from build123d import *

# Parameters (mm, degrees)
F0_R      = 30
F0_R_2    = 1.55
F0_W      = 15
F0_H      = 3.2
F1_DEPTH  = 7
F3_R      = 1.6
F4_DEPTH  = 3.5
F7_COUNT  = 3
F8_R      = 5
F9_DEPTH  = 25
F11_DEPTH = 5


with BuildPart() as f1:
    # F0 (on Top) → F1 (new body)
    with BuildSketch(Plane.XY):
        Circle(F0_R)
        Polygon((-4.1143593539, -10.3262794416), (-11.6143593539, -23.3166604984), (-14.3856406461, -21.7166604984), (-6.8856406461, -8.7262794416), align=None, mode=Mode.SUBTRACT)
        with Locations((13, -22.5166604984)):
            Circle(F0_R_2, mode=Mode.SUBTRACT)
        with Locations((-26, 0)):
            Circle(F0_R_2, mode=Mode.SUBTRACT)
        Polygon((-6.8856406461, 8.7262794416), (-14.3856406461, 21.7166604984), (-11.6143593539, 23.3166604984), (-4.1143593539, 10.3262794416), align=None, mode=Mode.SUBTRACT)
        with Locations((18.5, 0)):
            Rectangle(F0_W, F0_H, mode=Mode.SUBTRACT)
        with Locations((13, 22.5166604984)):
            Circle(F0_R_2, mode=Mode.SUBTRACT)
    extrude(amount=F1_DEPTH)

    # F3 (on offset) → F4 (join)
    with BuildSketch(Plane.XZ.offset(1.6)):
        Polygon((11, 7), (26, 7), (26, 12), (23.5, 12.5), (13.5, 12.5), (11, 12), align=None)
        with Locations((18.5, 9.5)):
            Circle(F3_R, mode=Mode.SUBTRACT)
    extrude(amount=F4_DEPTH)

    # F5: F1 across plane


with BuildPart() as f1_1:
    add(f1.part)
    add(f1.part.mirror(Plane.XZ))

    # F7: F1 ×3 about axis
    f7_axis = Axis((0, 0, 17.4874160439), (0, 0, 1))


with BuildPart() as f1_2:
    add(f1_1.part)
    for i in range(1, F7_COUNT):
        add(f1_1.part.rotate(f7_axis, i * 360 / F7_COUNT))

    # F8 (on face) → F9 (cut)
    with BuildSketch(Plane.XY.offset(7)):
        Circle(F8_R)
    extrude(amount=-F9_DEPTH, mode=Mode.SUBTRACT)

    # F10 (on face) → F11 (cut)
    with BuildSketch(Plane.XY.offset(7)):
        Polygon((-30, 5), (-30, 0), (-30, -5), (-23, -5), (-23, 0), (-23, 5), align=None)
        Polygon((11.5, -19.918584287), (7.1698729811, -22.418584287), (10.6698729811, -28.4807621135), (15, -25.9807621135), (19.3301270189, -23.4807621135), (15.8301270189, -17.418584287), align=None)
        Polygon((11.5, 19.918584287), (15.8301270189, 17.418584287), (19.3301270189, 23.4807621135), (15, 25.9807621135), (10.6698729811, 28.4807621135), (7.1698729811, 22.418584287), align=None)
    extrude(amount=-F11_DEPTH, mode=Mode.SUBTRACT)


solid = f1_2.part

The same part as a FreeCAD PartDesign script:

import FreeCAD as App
import Part
import Sketcher
from FreeCAD import Vector
Q = App.Units.Quantity


def add_polygon(sketch, points):
    """Adds a closed chain of lines whose ends are joined by coincident constraints."""
    first, n = sketch.GeometryCount, len(points)
    for a, b in zip(points, points[1:] + points[:1]):
        sketch.addGeometry(Part.LineSegment(App.Vector(*a, 0), App.Vector(*b, 0)), False)
    for i in range(n):
        sketch.addConstraint(Sketcher.Constraint("Coincident", first + i, 2, first + (i + 1) % n, 1))

doc = App.newDocument("Part")
body = doc.addObject("PartDesign::Body", "Body")

sketch1 = body.newObject("Sketcher::SketchObject", "Sketch")
sketch1.AttachmentSupport = (doc.getObject("XY_Plane"), [""])
sketch1.MapMode = "FlatFace"
sketch1.addGeometry(Part.Circle(Vector(0, 0, 0), Vector(0, 0, 1), 30), False)
add_polygon(sketch1, [(-6.885641, -8.726279), (-4.114359, -10.326279), (-11.614359, -23.31666), (-14.385641, -21.71666)])
sketch1.addGeometry(Part.Circle(Vector(13, -22.51666, 0), Vector(0, 0, 1), 1.55), False)
sketch1.addGeometry(Part.Circle(Vector(-26, 0, 0), Vector(0, 0, 1), 1.55), False)
add_polygon(sketch1, [(-4.114359, 10.326279), (-6.885641, 8.726279), (-14.385641, 21.71666), (-11.614359, 23.31666)])
add_polygon(sketch1, [(26, -1.6), (11, -1.6), (11, 1.6), (26, 1.6)])
sketch1.addGeometry(Part.Circle(Vector(13, 22.51666, 0), Vector(0, 0, 1), 1.55), False)
sketch1.addConstraint([
    Sketcher.Constraint("Horizontal", 11),
    Sketcher.Constraint("Vertical", 12),
    Sketcher.Constraint("Horizontal", 13),
    Sketcher.Constraint("Vertical", 14),
    Sketcher.Constraint("Coincident", 0, 3, -1, 1),
    Sketcher.Constraint("Equal", 5, 6),
    Sketcher.Constraint("Equal", 6, 15),
    Sketcher.Constraint("Symmetric", 5, 3, 15, 3, -1),
    Sketcher.Constraint("Symmetric", 4, 2, 7, 2, -1),
    Sketcher.Constraint("Symmetric", 3, 2, 8, 2, -1),
    Sketcher.Constraint("Symmetric", 2, 2, 9, 2, -1),
    Sketcher.Constraint("Symmetric", 1, 2, 10, 2, -1),
    Sketcher.Constraint("PointOnObject", 6, 3, -1),
    Sketcher.Constraint("Perpendicular", 1, 2),
    Sketcher.Constraint("Perpendicular", 2, 3),
    Sketcher.Constraint("Perpendicular", 3, 4),
    Sketcher.Constraint("Diameter", 0, 60.0),
    Sketcher.Constraint("Diameter", 5, 3.1),
    Sketcher.Constraint("DistanceX", 11, 2, 11, 1, 15.0),
    Sketcher.Constraint("Angle", 1, Q("-30 deg")),
    Sketcher.Constraint("Distance", 2, 15.0),
    Sketcher.Constraint("DistanceY", 12, 1, 12, 2, 3.2),
    Sketcher.Constraint("DistanceX", -1, 1, 5, 3, 13.0),
    Sketcher.Constraint("DistanceX", 6, 3, -1, 1, 26.0),
    Sketcher.Constraint("DistanceX", -1, 1, 11, 2, 11.0),
    Sketcher.Constraint("Distance", 1, 3.2),
    Sketcher.Constraint("DistanceY", 11, 2, -1, 1, 1.6),
    Sketcher.Constraint("DistanceY", 2, 2, 5, 3, 0.8),
    Sketcher.Constraint("DistanceY", 5, 3, -1, 1, 22.51666),
    Sketcher.Constraint("DistanceX", 1, 2, -1, 1, 4.114359),
])
pad1 = body.newObject("PartDesign::Pad", "Pad")
pad1.Profile = sketch1
pad1.Length = 7

sketch2 = body.newObject("Sketcher::SketchObject", "Sketch001")
sketch2.AttachmentSupport = (doc.getObject("XZ_Plane"), [""])
sketch2.MapMode = "FlatFace"
sketch2.AttachmentOffset = App.Placement(Vector(0, 0, 1.6), App.Rotation())
add_polygon(sketch2, [(11, 7), (26, 7), (26, 12), (23.5, 12.5), (13.5, 12.5), (11, 12)])
sketch2.addGeometry(Part.Circle(Vector(18.5, 9.5, 0), Vector(0, 0, 1), 1.6), False)
sketch2.addConstraint([
    Sketcher.Constraint("Horizontal", 0),
    Sketcher.Constraint("Vertical", 1),
    Sketcher.Constraint("Horizontal", 3),
    Sketcher.Constraint("Vertical", 5),
    Sketcher.Constraint("Horizontal", 1, 2, 4, 2),
    Sketcher.Constraint("Equal", 2, 4),
    Sketcher.Constraint("Diameter", 6, 3.2),
    Sketcher.Constraint("DistanceX", 0, 1, 0, 2, 15.0),
    Sketcher.Constraint("DistanceX", 3, 2, 3, 1, 10.0),
    Sketcher.Constraint("DistanceY", 1, 1, 1, 2, 5.0),
    Sketcher.Constraint("DistanceX", -1, 1, 0, 2, 26.0),
    Sketcher.Constraint("DistanceY", -1, 1, 0, 2, 7.0),
    Sketcher.Constraint("DistanceX", 6, 3, 2, 2, 5.0),
    Sketcher.Constraint("DistanceY", 6, 3, 2, 2, 3.0),
    Sketcher.Constraint("DistanceY", -1, 1, 6, 3, 9.5),
])
pad2 = body.newObject("PartDesign::Pad", "Pad001")
pad2.Profile = sketch2
pad2.Length = 3.5
body2 = doc.addObject("PartDesign::Body", "Body001")
doc.recompute()

body2.BaseFeature = body
doc.recompute()

mirroring = doc.addObject("Part::Mirroring", "Mirroring")
mirroring.Source = body
mirroring.Base = Vector(0, 0, 0)
mirroring.Normal = Vector(0, -1, 0)
body3 = doc.addObject("PartDesign::Body", "Body002")
body3.BaseFeature = mirroring
boolean = body2.newObject("PartDesign::Boolean", "Boolean")
boolean.Type = "Fuse"
boolean.addObjects([body3])
doc.recompute()
body4 = doc.addObject("PartDesign::Body", "Body003")
doc.recompute()

body4.BaseFeature = body2
doc.recompute()

body5 = doc.addObject("PartDesign::Body", "Body004")
body5.BaseFeature = body2
body5.Placement = App.Placement(Vector(0, 0, 0), App.Rotation(Vector(0, 0, 1), 120))
boolean2 = body4.newObject("PartDesign::Boolean", "Boolean001")
boolean2.Type = "Fuse"
boolean2.addObjects([body5])
doc.recompute()

body2.Placement = App.Placement(Vector(0, 0, 0), App.Rotation(Vector(0, 0, 1), 240))
boolean3 = body4.newObject("PartDesign::Boolean", "Boolean002")
boolean3.Type = "Fuse"
boolean3.addObjects([body2])

sketch3 = body4.newObject("Sketcher::SketchObject", "Sketch002")
sketch3.AttachmentSupport = (doc.getObject("XY_Plane003"), [""])
sketch3.MapMode = "FlatFace"
sketch3.AttachmentOffset = App.Placement(Vector(0, 0, 7), App.Rotation())
sketch3.addGeometry(Part.Circle(Vector(0, 0, 0), Vector(0, 0, 1), 5), False)
sketch3.addConstraint([
    Sketcher.Constraint("Coincident", 0, 3, -1, 1),
    Sketcher.Constraint("Diameter", 0, 10.0),
])
pocket1 = body4.newObject("PartDesign::Pocket", "Pocket")
pocket1.Profile = sketch3
pocket1.Length = 25

sketch4 = body4.newObject("Sketcher::SketchObject", "Sketch003")
sketch4.AttachmentSupport = (doc.getObject("XY_Plane003"), [""])
sketch4.MapMode = "FlatFace"
sketch4.AttachmentOffset = App.Placement(Vector(0, 0, 7), App.Rotation())
add_polygon(sketch4, [(-30, 5), (-30, -5), (-23, -5), (-23, 5)])
add_polygon(sketch4, [(7.169873, -22.418584), (10.669873, -28.480762), (19.330127, -23.480762), (15.830127, -17.418584)])
add_polygon(sketch4, [(15.830127, 17.418584), (19.330127, 23.480762), (10.669873, 28.480762), (7.169873, 22.418584)])
sketch4.addConstraint([
    Sketcher.Constraint("Vertical", 0),
    Sketcher.Constraint("Horizontal", 1),
    Sketcher.Constraint("Vertical", 2),
    Sketcher.Constraint("Horizontal", 3),
    Sketcher.Constraint("Symmetric", 5, 2, 8, 2, -1),
    Sketcher.Constraint("Symmetric", 4, 2, 9, 2, -1),
    Sketcher.Constraint("Symmetric", 7, 2, 10, 2, -1),
    Sketcher.Constraint("Symmetric", 6, 2, 11, 2, -1),
    Sketcher.Constraint("Perpendicular", 4, 5),
    Sketcher.Constraint("Perpendicular", 5, 6),
    Sketcher.Constraint("Perpendicular", 6, 7),
    Sketcher.Constraint("DistanceX", 1, 1, 1, 2, 7.0),
    Sketcher.Constraint("DistanceY", 0, 2, 0, 1, 10.0),
    Sketcher.Constraint("Angle", 4, Q("-60 deg")),
    Sketcher.Constraint("Distance", 4, 7.0),
    Sketcher.Constraint("Distance", 5, 10.0),
    Sketcher.Constraint("DistanceX", 0, 2, -1, 1, 30.0),
    Sketcher.Constraint("DistanceY", 0, 2, -1, 1, 5.0),
    Sketcher.Constraint("DistanceY", 6, 2, 10, 2, 39.837169),
    Sketcher.Constraint("DistanceX", -1, 1, 4, 2, 10.669873),
])
pocket2 = body4.newObject("PartDesign::Pocket", "Pocket001")
pocket2.Profile = sketch4
pocket2.Length = 5
mirroring.Visibility = False

doc.recompute()
